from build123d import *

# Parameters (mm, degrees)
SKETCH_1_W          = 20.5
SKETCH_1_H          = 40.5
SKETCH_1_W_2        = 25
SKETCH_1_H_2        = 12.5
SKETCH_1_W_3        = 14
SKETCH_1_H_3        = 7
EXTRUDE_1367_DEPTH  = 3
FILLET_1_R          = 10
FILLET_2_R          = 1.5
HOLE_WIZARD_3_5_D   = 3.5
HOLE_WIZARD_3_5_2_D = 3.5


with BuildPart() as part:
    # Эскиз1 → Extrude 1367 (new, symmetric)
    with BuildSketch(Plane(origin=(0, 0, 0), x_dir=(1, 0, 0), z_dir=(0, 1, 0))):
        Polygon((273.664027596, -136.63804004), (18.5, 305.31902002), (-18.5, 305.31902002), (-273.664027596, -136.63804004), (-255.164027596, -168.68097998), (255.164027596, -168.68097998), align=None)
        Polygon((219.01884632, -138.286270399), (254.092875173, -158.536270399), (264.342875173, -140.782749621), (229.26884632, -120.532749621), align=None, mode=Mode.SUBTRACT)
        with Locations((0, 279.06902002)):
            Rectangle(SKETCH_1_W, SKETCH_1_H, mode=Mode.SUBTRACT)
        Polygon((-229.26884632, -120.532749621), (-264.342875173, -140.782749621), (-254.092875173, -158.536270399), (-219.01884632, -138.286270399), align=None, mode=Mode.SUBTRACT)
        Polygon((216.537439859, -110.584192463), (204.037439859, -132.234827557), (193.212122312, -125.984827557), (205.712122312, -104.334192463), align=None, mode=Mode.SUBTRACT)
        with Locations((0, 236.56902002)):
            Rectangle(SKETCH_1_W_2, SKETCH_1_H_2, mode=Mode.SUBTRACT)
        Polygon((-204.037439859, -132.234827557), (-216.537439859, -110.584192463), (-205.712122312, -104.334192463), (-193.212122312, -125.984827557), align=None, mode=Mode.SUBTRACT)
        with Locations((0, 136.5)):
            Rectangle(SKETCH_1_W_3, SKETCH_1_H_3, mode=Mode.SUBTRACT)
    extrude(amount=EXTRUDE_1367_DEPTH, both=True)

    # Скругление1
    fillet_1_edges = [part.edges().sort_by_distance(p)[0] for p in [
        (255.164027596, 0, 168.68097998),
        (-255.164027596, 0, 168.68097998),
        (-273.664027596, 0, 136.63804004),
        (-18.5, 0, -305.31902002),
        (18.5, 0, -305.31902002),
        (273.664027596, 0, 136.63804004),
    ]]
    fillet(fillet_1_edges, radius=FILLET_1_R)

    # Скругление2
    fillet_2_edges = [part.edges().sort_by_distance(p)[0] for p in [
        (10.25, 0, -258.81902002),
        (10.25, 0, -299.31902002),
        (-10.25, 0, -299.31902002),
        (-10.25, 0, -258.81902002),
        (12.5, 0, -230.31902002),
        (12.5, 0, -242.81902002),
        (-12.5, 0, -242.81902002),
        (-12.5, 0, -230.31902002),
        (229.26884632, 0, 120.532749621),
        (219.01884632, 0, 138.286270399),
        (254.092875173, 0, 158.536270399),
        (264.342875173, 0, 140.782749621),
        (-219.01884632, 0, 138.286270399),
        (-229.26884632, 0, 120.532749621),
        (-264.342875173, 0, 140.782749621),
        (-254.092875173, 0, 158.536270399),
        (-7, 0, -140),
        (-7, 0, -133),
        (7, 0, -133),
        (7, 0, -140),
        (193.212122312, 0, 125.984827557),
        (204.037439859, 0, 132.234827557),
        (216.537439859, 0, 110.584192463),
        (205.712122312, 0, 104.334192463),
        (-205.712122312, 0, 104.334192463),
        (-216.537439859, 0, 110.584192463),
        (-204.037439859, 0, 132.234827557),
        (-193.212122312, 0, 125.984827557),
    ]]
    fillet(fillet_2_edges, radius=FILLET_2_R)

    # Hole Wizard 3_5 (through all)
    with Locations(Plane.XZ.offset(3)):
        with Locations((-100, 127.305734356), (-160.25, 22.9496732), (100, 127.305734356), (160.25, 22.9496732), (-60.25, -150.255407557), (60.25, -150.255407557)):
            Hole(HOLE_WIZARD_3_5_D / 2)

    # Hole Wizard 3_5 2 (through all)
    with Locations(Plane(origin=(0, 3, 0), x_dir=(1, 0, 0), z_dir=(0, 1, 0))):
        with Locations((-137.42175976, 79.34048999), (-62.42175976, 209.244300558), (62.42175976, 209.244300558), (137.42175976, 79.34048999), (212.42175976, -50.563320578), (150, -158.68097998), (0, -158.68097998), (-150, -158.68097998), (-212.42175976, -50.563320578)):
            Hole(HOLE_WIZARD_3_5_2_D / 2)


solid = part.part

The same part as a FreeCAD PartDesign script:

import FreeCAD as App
import Part
import Sketcher

V = App.Vector
Q = App.Units.Quantity


def edges_at(feature, points):
    """Names of the edges that pass closest to the given points."""
    edges = feature.Shape.Edges
    near = lambda p: min(range(len(edges)), key=lambda i: edges[i].distToShape(Part.Vertex(*p))[0])
    return sorted({f"Edge{near(p) + 1}" for p in points})

doc = App.newDocument("Part")
body = doc.addObject("PartDesign::Body", "Body")

# Sketch on XZ plane
sketch1 = doc.addObject("Sketcher::SketchObject", "Sketch")
body.addObject(sketch1)
sketch1.AttachmentSupport = (doc.XZ_Plane, [""])
sketch1.MapMode = "FlatFace"
sketch1.addGeometry([
    Part.LineSegment(V(274, 137, 0), V(18, -305, 0)),  # 0
    Part.LineSegment(V(18, -305, 0), V(-18, -305, 0)),  # 1
    Part.LineSegment(V(-18, -305, 0), V(-274, 137, 0)),  # 2
    Part.LineSegment(V(-274, 137, 0), V(-255, 169, 0)),  # 3
    Part.LineSegment(V(-255, 169, 0), V(255, 169, 0)),  # 4
    Part.LineSegment(V(255, 169, 0), V(274, 137, 0)),  # 5
    Part.LineSegment(V(-264, 141, 0), V(-229, 121, 0)),  # 6
    Part.LineSegment(V(-229, 121, 0), V(-219, 138, 0)),  # 7
    Part.LineSegment(V(-219, 138, 0), V(-254, 159, 0)),  # 8
    Part.LineSegment(V(-254, 159, 0), V(-264, 141, 0)),  # 9
    Part.LineSegment(V(-193, 126, 0), V(-204, 132, 0)),  # 10
    Part.LineSegment(V(-204, 132, 0), V(-217, 111, 0)),  # 11
    Part.LineSegment(V(-217, 111, 0), V(-206, 104, 0)),  # 12
    Part.LineSegment(V(-206, 104, 0), V(-193, 126, 0)),  # 13
    Part.LineSegment(V(254, 159, 0), V(219, 138, 0)),  # 14
    Part.LineSegment(V(219, 138, 0), V(229, 121, 0)),  # 15
    Part.LineSegment(V(229, 121, 0), V(264, 141, 0)),  # 16
    Part.LineSegment(V(264, 141, 0), V(254, 159, 0)),  # 17
    Part.LineSegment(V(206, 104, 0), V(217, 111, 0)),  # 18
    Part.LineSegment(V(217, 111, 0), V(204, 132, 0)),  # 19
    Part.LineSegment(V(204, 132, 0), V(193, 126, 0)),  # 20
    Part.LineSegment(V(193, 126, 0), V(206, 104, 0)),  # 21
    Part.LineSegment(V(7, -133, 0), V(-7, -133, 0)),  # 22
    Part.LineSegment(V(-7, -133, 0), V(-7, -140, 0)),  # 23
    Part.LineSegment(V(-7, -140, 0), V(7, -140, 0)),  # 24
    Part.LineSegment(V(7, -140, 0), V(7, -133, 0)),  # 25
    Part.LineSegment(V(12, -230, 0), V(-12, -230, 0)),  # 26
    Part.LineSegment(V(-12, -230, 0), V(-12, -243, 0)),  # 27
    Part.LineSegment(V(-12, -243, 0), V(12, -243, 0)),  # 28
    Part.LineSegment(V(12, -243, 0), V(12, -230, 0)),  # 29
    Part.LineSegment(V(10, -259, 0), V(-10, -259, 0)),  # 30
    Part.LineSegment(V(-10, -259, 0), V(-10, -299, 0)),  # 31
    Part.LineSegment(V(-10, -299, 0), V(10, -299, 0)),  # 32
    Part.LineSegment(V(10, -299, 0), V(10, -259, 0)),  # 33
], False)
sketch1.addConstraint([
    Sketcher.Constraint("Coincident", 0, 2, 1, 1),
    Sketcher.Constraint("Coincident", 1, 2, 2, 1),
    Sketcher.Constraint("Coincident", 2, 2, 3, 1),
    Sketcher.Constraint("Coincident", 3, 2, 4, 1),
    Sketcher.Constraint("Coincident", 4, 2, 5, 1),
    Sketcher.Constraint("Coincident", 5, 2, 0, 1),
    Sketcher.Constraint("Coincident", 6, 2, 7, 1),
    Sketcher.Constraint("Coincident", 7, 2, 8, 1),
    Sketcher.Constraint("Coincident", 8, 2, 9, 1),
    Sketcher.Constraint("Coincident", 9, 2, 6, 1),
    Sketcher.Constraint("Coincident", 10, 2, 11, 1),
    Sketcher.Constraint("Coincident", 11, 2, 12, 1),
    Sketcher.Constraint("Coincident", 12, 2, 13, 1),
    Sketcher.Constraint("Coincident", 13, 2, 10, 1),
    Sketcher.Constraint("Coincident", 14, 2, 15, 1),
    Sketcher.Constraint("Coincident", 15, 2, 16, 1),
    Sketcher.Constraint("Coincident", 16, 2, 17, 1),
    Sketcher.Constraint("Coincident", 17, 2, 14, 1),
    Sketcher.Constraint("Coincident", 18, 2, 19, 1),
    Sketcher.Constraint("Coincident", 19, 2, 20, 1),
    Sketcher.Constraint("Coincident", 20, 2, 21, 1),
    Sketcher.Constraint("Coincident", 21, 2, 18, 1),
    Sketcher.Constraint("Coincident", 22, 2, 23, 1),
    Sketcher.Constraint("Coincident", 23, 2, 24, 1),
    Sketcher.Constraint("Coincident", 24, 2, 25, 1),
    Sketcher.Constraint("Coincident", 25, 2, 22, 1),
    Sketcher.Constraint("Coincident", 26, 2, 27, 1),
    Sketcher.Constraint("Coincident", 27, 2, 28, 1),
    Sketcher.Constraint("Coincident", 28, 2, 29, 1),
    Sketcher.Constraint("Coincident", 29, 2, 26, 1),
    Sketcher.Constraint("Coincident", 30, 2, 31, 1),
    Sketcher.Constraint("Coincident", 31, 2, 32, 1),
    Sketcher.Constraint("Coincident", 32, 2, 33, 1),
    Sketcher.Constraint("Coincident", 33, 2, 30, 1),
    Sketcher.Constraint("Horizontal", 1),
    Sketcher.Constraint("Horizontal", 4),
    Sketcher.Constraint("Horizontal", 22),
    Sketcher.Constraint("Vertical", 23),
    Sketcher.Constraint("Horizontal", 24),
    Sketcher.Constraint("Vertical", 25),
    Sketcher.Constraint("Horizontal", 26),
    Sketcher.Constraint("Vertical", 27),
    Sketcher.Constraint("Horizontal", 28),
    Sketcher.Constraint("Vertical", 29),
    Sketcher.Constraint("Horizontal", 30),
    Sketcher.Constraint("Vertical", 31),
    Sketcher.Constraint("Horizontal", 32),
    Sketcher.Constraint("Vertical", 33),
    Sketcher.Constraint("Symmetric", 2, 2, 5, 2, -2),
    Sketcher.Constraint("Symmetric", 7, 2, 14, 2, -2),
    Sketcher.Constraint("Symmetric", 6, 2, 15, 2, -2),
    Sketcher.Constraint("Symmetric", 9, 2, 16, 2, -2),
    Sketcher.Constraint("Symmetric", 8, 2, 17, 2, -2),
    Sketcher.Constraint("Symmetric", 11, 2, 18, 2, -2),
    Sketcher.Constraint("Symmetric", 10, 2, 19, 2, -2),
    Sketcher.Constraint("Symmetric", 13, 2, 20, 2, -2),
    Sketcher.Constraint("Symmetric", 12, 2, 21, 2, -2),
    Sketcher.Constraint("Parallel", 0, 3),
    Sketcher.Constraint("Parallel", 2, 5),
    Sketcher.Constraint("Perpendicular", 3, 6),
    Sketcher.Constraint("Perpendicular", 6, 7),
    Sketcher.Constraint("Perpendicular", 7, 8),
    Sketcher.Constraint("Perpendicular", 8, 9),
    Sketcher.Constraint("Perpendicular", 9, 10),
    Sketcher.Constraint("Perpendicular", 10, 11),
    Sketcher.Constraint("Perpendicular", 11, 12),
    Sketcher.Constraint("Perpendicular", 12, 13),
    Sketcher.Constraint("Perpendicular", 5, 14),
    Sketcher.Constraint("DistanceX", 1, 2, 1, 1, Q("37 mm")),
    Sketcher.Constraint("DistanceX", 22, 2, 22, 1, Q("14 mm")),
    Sketcher.Constraint("DistanceX", 26, 2, 26, 1, Q("25 mm")),
    Sketcher.Constraint("DistanceY", 23, 2, 23, 1, Q("7 mm")),
    Sketcher.Constraint("Angle", 0, Q("-120 deg")),
    Sketcher.Constraint("Distance", 3, Q("37 mm")),
    Sketcher.Constraint("Distance", 11, Q("25 mm")),
    Sketcher.Constraint("DistanceX", 30, 2, 30, 1, Q("20.5 mm")),
    Sketcher.Constraint("DistanceY", 27, 2, 27, 1, Q("12.5 mm")),
    Sketcher.Constraint("DistanceY", 31, 2, 31, 1, Q("40.5 mm")),
    Sketcher.Constraint("DistanceX", 22, 2, -1, 1, Q("7 mm")),
    Sketcher.Constraint("DistanceY", 22, 2, -1, 1, Q("133 mm")),
    Sketcher.Constraint("DistanceY", 1, 2, 3, 2, Q("474 mm")),
    Sketcher.Constraint("DistanceX", 1, 2, 26, 2, Q("6 mm")),
    Sketcher.Constraint("DistanceY", 1, 2, 26, 2, Q("75 mm")),
    Sketcher.Constraint("DistanceY", 30, 2, 27, 2, Q("16 mm")),
    Sketcher.Constraint("Distance", 6, Q("40.5 mm")),
    Sketcher.Constraint("Distance", 7, Q("20.5 mm")),
    Sketcher.Constraint("Distance", 10, Q("12.5 mm")),
    Sketcher.Constraint("DistanceX", 30, 2, -1, 1, Q("10.25 mm")),
    Sketcher.Constraint("DistanceY", 0, 2, -1, 1, Q("305.31902 mm")),
    Sketcher.Constraint("DistanceY", -1, 1, 6, 2, Q("120.53275 mm")),
    Sketcher.Constraint("DistanceX", 10, 2, -1, 1, Q("204.03744 mm")),
    Sketcher.Constraint("DistanceX", 2, 2, 6, 2, Q("44.395181 mm")),
    Sketcher.Constraint("DistanceY", -1, 1, 10, 2, Q("132.234828 mm")),
])
pad1 = doc.addObject("PartDesign::Pad", "Pad")
body.addObject(pad1)
pad1.Profile = sketch1
pad1.Length = 6
pad1.Midplane = True
doc.recompute()

fillet = doc.addObject("PartDesign::Fillet", "Fillet")
body.addObject(fillet)
fillet.Base = (pad1, edges_at(pad1, [
    (255.164, 0, 168.681),
    (-255.164, 0, 168.681),
    (-273.664, 0, 136.638),
    (-18.5, 0, -305.319),
    (18.5, 0, -305.319),
    (273.664, 0, 136.638),
]))
fillet.Radius = 10
doc.recompute()

fillet2 = doc.addObject("PartDesign::Fillet", "Fillet001")
body.addObject(fillet2)
fillet2.Base = (fillet, edges_at(fillet, [
    (10.25, 0, -258.819),
    (10.25, 0, -299.319),
    (-10.25, 0, -299.319),
    (-10.25, 0, -258.819),
    (12.5, 0, -230.319),
    (12.5, 0, -242.819),
    (-12.5, 0, -242.819),
    (-12.5, 0, -230.319),
    (229.269, 0, 120.533),
    (219.019, 0, 138.286),
    (254.093, 0, 158.536),
    (264.343, 0, 140.783),
    (-219.019, 0, 138.286),
    (-229.269, 0, 120.533),
    (-264.343, 0, 140.783),
    (-254.093, 0, 158.536),
    (-7, 0, -140),
    (-7, 0, -133),
    (7, 0, -133),
    (7, 0, -140),
    (193.212, 0, 125.985),
    (204.037, 0, 132.235),
    (216.537, 0, 110.584),
    (205.712, 0, 104.334),
    (-205.712, 0, 104.334),
    (-216.537, 0, 110.584),
    (-204.037, 0, 132.235),
    (-193.212, 0, 125.985),
]))
fillet2.Radius = 1.5

# Sketch on XZ plane
sketch2 = doc.addObject("Sketcher::SketchObject", "Sketch001")
body.addObject(sketch2)
sketch2.AttachmentSupport = (doc.XZ_Plane, [""])
sketch2.MapMode = "FlatFace"
sketch2.AttachmentOffset = App.Placement(V(0, 0, 3), App.Rotation())
sketch2.addGeometry([
    Part.Circle(V(-100, 127.3, 0), V(0, 0, 1), 1.8),  # 0
    Part.Circle(V(-160.2, 22.9, 0), V(0, 0, 1), 1.8),  # 1
    Part.Circle(V(100, 127.3, 0), V(0, 0, 1), 1.8),  # 2
    Part.Circle(V(160.2, 22.9, 0), V(0, 0, 1), 1.8),  # 3
    Part.Circle(V(-60.2, -150.3, 0), V(0, 0, 1), 1.8),  # 4
    Part.Circle(V(60.2, -150.3, 0), V(0, 0, 1), 1.8),  # 5
], False)
sketch2.addConstraint([
    Sketcher.Constraint("Equal", 0, 1),
    Sketcher.Constraint("Equal", 1, 2),
    Sketcher.Constraint("Equal", 2, 3),
    Sketcher.Constraint("Equal", 3, 4),
    Sketcher.Constraint("Equal", 4, 5),
    Sketcher.Constraint("Symmetric", 0, 3, 2, 3, -2),
    Sketcher.Constraint("Symmetric", 1, 3, 3, 3, -2),
    Sketcher.Constraint("Symmetric", 4, 3, 5, 3, -2),
    Sketcher.Constraint("Diameter", 0, Q("3.5 mm")),
    Sketcher.Constraint("DistanceX", 0, 3, -1, 1, Q("100 mm")),
    Sketcher.Constraint("DistanceX", 1, 3, 4, 3, Q("100 mm")),
    Sketcher.Constraint("DistanceX", 1, 3, 3, 3, Q("320.5 mm")),
    Sketcher.Constraint("DistanceY", 1, 3, 0, 3, Q("104.356061 mm")),
    Sketcher.Constraint("DistanceY", 4, 3, 1, 3, Q("173.205081 mm")),
    Sketcher.Constraint("DistanceY", -1, 1, 0, 3, Q("127.305734 mm")),
])
doc.recompute()
hole = doc.addObject("PartDesign::Hole", "Hole")
body.addObject(hole)
hole.Profile = sketch2
hole.ThreadType = "None"
hole.Diameter = 3.5
hole.DepthType = "ThroughAll"

# Sketch on XZ plane
sketch3 = doc.addObject("Sketcher::SketchObject", "Sketch002")
body.addObject(sketch3)
sketch3.AttachmentSupport = (doc.XZ_Plane, [""])
sketch3.MapMode = "FlatFace"
sketch3.AttachmentOffset = App.Placement(V(0, 0, -3), App.Rotation())
sketch3.addGeometry([
    Part.Circle(V(-137.4, -79.3, 0), V(0, 0, 1), 1.8),  # 0
    Part.Circle(V(-62.4, -209.2, 0), V(0, 0, 1), 1.8),  # 1
    Part.Circle(V(62.4, -209.2, 0), V(0, 0, 1), 1.8),  # 2
    Part.Circle(V(137.4, -79.3, 0), V(0, 0, 1), 1.8),  # 3
    Part.Circle(V(212.4, 50.6, 0), V(0, 0, 1), 1.8),  # 4
    Part.Circle(V(150, 158.7, 0), V(0, 0, 1), 1.8),  # 5
    Part.Circle(V(0, 158.7, 0), V(0, 0, 1), 1.8),  # 6
    Part.Circle(V(-150, 158.7, 0), V(0, 0, 1), 1.8),  # 7
    Part.Circle(V(-212.4, 50.6, 0), V(0, 0, 1), 1.8),  # 8
], False)
sketch3.addConstraint([
    Sketcher.Constraint("Equal", 0, 1),
    Sketcher.Constraint("Equal", 1, 2),
    Sketcher.Constraint("Equal", 2, 3),
    Sketcher.Constraint("Equal", 3, 4),
    Sketcher.Constraint("Equal", 4, 5),
    Sketcher.Constraint("Equal", 5, 6),
    Sketcher.Constraint("Equal", 6, 7),
    Sketcher.Constraint("Equal", 7, 8),
    Sketcher.Constraint("Symmetric", 1, 3, 2, 3, -2),
    Sketcher.Constraint("Symmetric", 0, 3, 3, 3, -2),
    Sketcher.Constraint("Symmetric", 5, 3, 7, 3, -2),
    Sketcher.Constraint("Symmetric", 4, 3, 8, 3, -2),
    Sketcher.Constraint("PointOnObject", 6, 3, -2),
    Sketcher.Constraint("Horizontal", 5, 3, 6, 3),
    Sketcher.Constraint("Diameter", 0, Q("3.5 mm")),
    Sketcher.Constraint("DistanceX", -1, 1, 5, 3, Q("150 mm")),
    Sketcher.Constraint("DistanceX", 0, 3, 1, 3, Q("75 mm")),
    Sketcher.Constraint("DistanceX", 3, 3, 4, 3, Q("75 mm")),
    Sketcher.Constraint("DistanceY", 1, 3, -1, 1, Q("209.244301 mm")),
    Sketcher.Constraint("DistanceX", 0, 3, -1, 1, Q("137.42176 mm")),
    Sketcher.Constraint("DistanceY", 0, 3, -1, 1, Q("79.34049 mm")),
    Sketcher.Constraint("DistanceY", -1, 1, 4, 3, Q("50.563321 mm")),
    Sketcher.Constraint("DistanceY", -1, 1, 5, 3, Q("158.68098 mm")),
])
doc.recompute()
hole2 = doc.addObject("PartDesign::Hole", "Hole001")
body.addObject(hole2)
hole2.Profile = sketch3
hole2.ThreadType = "None"
hole2.Diameter = 3.5
hole2.DepthType = "ThroughAll"
hole2.Reversed = True

doc.recompute()
